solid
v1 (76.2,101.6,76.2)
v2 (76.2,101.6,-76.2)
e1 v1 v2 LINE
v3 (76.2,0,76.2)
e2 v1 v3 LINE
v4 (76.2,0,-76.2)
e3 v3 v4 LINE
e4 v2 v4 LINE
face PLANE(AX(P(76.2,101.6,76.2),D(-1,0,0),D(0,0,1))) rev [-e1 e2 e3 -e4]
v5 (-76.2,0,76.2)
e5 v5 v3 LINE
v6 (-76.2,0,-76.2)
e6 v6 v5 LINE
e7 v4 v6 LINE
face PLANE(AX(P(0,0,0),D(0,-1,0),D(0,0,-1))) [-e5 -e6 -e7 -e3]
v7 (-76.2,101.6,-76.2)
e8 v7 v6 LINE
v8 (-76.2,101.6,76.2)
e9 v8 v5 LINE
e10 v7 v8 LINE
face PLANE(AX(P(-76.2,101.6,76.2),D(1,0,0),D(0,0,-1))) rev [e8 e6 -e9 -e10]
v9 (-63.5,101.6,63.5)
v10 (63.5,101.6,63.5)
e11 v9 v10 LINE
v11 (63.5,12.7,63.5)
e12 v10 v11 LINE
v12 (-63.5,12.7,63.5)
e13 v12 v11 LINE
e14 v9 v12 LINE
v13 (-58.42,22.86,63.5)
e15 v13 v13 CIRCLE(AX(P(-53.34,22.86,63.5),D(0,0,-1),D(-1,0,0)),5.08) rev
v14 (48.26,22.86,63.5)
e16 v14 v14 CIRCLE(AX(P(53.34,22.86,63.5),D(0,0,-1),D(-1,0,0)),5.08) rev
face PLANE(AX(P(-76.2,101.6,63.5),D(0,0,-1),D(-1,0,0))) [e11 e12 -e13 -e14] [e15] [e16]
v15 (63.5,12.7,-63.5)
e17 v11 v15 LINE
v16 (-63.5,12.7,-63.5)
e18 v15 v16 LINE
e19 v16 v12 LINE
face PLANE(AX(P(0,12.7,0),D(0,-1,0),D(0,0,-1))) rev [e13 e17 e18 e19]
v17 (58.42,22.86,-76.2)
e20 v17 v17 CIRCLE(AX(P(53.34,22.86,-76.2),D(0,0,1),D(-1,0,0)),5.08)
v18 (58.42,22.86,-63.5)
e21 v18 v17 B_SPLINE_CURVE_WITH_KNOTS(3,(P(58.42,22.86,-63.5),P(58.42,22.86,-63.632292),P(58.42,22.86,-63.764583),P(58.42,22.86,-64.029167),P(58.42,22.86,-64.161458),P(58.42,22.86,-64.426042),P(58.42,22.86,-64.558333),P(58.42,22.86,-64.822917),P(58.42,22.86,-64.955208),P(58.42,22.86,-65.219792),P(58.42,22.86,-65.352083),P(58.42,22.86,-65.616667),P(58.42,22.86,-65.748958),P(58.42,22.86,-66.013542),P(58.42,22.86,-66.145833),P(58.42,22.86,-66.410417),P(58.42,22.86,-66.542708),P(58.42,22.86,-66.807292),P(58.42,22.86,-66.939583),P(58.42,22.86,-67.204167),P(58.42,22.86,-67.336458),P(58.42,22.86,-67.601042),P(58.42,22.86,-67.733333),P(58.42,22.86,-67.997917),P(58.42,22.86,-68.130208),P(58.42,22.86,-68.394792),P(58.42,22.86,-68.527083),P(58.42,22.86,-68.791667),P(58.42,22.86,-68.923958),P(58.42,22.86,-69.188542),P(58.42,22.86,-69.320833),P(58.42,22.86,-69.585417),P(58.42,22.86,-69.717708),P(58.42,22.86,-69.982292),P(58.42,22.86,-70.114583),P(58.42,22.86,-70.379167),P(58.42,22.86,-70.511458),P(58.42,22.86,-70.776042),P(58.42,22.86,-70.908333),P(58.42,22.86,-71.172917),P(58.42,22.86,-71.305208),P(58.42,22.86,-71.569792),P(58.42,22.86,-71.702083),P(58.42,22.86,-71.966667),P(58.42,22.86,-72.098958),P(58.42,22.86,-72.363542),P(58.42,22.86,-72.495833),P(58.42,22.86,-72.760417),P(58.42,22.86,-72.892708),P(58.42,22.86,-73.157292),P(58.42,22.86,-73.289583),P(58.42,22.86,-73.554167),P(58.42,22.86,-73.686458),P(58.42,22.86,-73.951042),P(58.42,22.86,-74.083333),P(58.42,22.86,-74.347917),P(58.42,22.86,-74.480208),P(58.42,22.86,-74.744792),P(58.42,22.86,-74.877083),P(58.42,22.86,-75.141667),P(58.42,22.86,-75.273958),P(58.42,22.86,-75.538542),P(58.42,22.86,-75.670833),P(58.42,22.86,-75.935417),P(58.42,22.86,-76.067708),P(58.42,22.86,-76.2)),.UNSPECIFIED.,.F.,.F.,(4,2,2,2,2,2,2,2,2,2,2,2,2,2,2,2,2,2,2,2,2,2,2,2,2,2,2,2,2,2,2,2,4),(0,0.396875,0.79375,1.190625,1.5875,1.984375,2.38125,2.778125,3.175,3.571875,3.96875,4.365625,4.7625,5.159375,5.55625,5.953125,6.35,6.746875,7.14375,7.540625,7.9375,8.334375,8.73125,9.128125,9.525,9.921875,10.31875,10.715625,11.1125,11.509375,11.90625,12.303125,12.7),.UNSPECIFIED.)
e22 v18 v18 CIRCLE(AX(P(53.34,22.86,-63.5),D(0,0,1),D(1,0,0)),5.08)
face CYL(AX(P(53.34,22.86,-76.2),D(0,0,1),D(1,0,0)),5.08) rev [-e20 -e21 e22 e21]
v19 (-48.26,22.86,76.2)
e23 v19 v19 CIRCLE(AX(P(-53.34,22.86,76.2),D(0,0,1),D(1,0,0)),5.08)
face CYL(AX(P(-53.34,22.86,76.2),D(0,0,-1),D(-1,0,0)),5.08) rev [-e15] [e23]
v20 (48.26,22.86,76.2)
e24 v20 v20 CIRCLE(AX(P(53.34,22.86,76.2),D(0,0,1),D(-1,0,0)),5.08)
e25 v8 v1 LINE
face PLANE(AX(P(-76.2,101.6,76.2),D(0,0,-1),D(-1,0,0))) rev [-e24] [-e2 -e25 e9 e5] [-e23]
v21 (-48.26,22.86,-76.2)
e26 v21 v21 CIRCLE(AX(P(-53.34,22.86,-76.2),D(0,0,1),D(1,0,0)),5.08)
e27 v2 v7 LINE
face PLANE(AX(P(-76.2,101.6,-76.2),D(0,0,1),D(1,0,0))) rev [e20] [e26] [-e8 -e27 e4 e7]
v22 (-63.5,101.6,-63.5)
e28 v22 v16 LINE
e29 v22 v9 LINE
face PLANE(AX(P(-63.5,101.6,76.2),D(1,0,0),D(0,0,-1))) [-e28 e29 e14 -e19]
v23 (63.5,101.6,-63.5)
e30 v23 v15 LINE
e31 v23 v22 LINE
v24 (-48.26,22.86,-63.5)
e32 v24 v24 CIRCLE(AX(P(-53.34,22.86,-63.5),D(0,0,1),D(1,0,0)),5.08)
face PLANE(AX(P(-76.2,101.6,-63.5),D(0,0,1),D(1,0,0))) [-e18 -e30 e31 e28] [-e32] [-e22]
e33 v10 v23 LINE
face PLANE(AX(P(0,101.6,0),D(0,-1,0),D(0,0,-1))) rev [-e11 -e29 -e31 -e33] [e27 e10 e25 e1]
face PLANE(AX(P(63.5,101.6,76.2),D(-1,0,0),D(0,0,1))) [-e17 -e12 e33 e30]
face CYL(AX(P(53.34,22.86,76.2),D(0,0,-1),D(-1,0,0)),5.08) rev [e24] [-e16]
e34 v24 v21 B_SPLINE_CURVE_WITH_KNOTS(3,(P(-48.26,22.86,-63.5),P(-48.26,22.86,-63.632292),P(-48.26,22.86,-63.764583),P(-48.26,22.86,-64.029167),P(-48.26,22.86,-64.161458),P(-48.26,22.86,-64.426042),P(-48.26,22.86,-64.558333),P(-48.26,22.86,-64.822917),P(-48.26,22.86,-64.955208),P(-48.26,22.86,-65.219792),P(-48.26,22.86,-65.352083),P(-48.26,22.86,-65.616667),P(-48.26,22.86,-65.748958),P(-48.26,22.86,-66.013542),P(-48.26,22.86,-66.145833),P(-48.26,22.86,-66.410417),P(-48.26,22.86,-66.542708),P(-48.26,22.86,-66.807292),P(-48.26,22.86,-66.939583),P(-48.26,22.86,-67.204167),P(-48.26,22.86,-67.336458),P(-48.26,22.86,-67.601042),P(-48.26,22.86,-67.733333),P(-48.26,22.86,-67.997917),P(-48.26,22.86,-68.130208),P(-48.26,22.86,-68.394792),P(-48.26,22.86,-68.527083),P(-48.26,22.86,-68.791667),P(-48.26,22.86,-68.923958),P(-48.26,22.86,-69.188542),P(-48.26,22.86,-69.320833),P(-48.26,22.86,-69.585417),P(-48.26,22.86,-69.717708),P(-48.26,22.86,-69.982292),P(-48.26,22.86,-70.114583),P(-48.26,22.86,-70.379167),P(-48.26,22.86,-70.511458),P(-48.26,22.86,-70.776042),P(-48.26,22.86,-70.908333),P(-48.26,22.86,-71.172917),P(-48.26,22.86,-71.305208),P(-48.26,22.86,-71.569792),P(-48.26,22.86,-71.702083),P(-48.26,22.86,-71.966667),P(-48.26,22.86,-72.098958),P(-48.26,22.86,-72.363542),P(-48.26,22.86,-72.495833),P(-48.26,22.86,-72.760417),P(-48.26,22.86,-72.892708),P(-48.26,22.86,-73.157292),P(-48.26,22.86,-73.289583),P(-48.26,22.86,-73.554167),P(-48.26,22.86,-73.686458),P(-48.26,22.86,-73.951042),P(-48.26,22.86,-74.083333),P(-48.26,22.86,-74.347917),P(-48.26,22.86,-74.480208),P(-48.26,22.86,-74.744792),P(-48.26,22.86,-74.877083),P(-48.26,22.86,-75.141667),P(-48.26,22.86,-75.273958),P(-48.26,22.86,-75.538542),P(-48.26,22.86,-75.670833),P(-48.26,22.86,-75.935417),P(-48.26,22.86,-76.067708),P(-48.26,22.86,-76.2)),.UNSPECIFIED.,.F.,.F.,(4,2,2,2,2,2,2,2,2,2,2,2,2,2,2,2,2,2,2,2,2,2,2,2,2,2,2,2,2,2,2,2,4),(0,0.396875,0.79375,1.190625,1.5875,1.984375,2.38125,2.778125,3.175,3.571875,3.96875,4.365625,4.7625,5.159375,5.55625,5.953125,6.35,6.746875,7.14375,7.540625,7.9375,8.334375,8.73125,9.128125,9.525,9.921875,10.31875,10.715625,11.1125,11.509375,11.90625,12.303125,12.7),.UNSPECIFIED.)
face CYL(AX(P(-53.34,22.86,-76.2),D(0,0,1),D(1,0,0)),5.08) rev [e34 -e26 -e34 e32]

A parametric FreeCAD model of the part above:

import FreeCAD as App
import Part
import Sketcher

V = App.Vector
Q = App.Units.Quantity


def faces_at(feature, points):
    """Names of the faces that lie closest to the given points."""
    faces = feature.Shape.Faces
    near = lambda p: min(range(len(faces)), key=lambda i: faces[i].distToShape(Part.Vertex(*p))[0])
    return sorted({f"Face{near(p) + 1}" for p in points})

doc = App.newDocument("Part")
body = doc.addObject("PartDesign::Body", "Body")

sketch1 = doc.addObject("Sketcher::SketchObject", "Sketch")
body.addObject(sketch1)
sketch1.AttachmentSupport = (doc.XZ_Plane, [""])
sketch1.MapMode = "FlatFace"
sketch1.addGeometry(Part.LineSegment(V(-76, -76, 0), V(-76, 76, 0)), False)
sketch1.addGeometry(Part.LineSegment(V(-76, 76, 0), V(76, 76, 0)), False)
sketch1.addGeometry(Part.LineSegment(V(76, 76, 0), V(76, -76, 0)), False)
sketch1.addGeometry(Part.LineSegment(V(76, -76, 0), V(-76, -76, 0)), False)
sketch1.addConstraint(Sketcher.Constraint("Coincident", 0, 2, 1, 1))
sketch1.addConstraint(Sketcher.Constraint("Coincident", 1, 2, 2, 1))
sketch1.addConstraint(Sketcher.Constraint("Coincident", 2, 2, 3, 1))
sketch1.addConstraint(Sketcher.Constraint("Coincident", 3, 2, 0, 1))
sketch1.addConstraint(Sketcher.Constraint("Vertical", 0))
sketch1.addConstraint(Sketcher.Constraint("Horizontal", 1))
sketch1.addConstraint(Sketcher.Constraint("Vertical", 2))
sketch1.addConstraint(Sketcher.Constraint("Horizontal", 3))
sketch1.addConstraint(Sketcher.Constraint("Symmetric", 0, 2, 2, 2, -1, 1))
sketch1.addConstraint(Sketcher.Constraint("Equal", 3, 0))
sketch1.addConstraint(Sketcher.Constraint("DistanceX", 1, 1, 1, 2, Q("6 in")))
pad1 = doc.addObject("PartDesign::Pad", "Pad")
body.addObject(pad1)
pad1.Profile = sketch1
pad1.Length = Q("4 in")
pad1.Reversed = True
doc.recompute()

thickness = doc.addObject("PartDesign::Thickness", "Thickness")
body.addObject(thickness)
thickness.Base = (pad1, faces_at(pad1, [(0, 101.6, 0)]))
thickness.Value = Q("0.5 in")
thickness.Reversed = True
thickness.Join = "Intersection"

sketch2 = doc.addObject("Sketcher::SketchObject", "Sketch001")
body.addObject(sketch2)
sketch2.AttachmentSupport = (doc.XY_Plane, [""])
sketch2.MapMode = "FlatFace"
sketch2.AttachmentOffset = App.Placement(V(0, 0, -2.5 * 25.4), App.Rotation())
sketch2.addGeometry(Part.Circle(V(-53, 23, 0), V(0, 0, 1), 5), False)
sketch2.addGeometry(Part.Circle(V(53, 23, 0), V(0, 0, 1), 5), False)
sketch2.addConstraint(Sketcher.Constraint("Equal", 0, 1))
sketch2.addConstraint(Sketcher.Constraint("Symmetric", 0, 3, 1, 3, -2))
sketch2.addConstraint(Sketcher.Constraint("Diameter", 0, Q("0.4 in")))
sketch2.addConstraint(Sketcher.Constraint("DistanceX", 0, 3, -1, 1, Q("2.1 in")))
sketch2.addConstraint(Sketcher.Constraint("DistanceY", -1, 1, 0, 3, Q("0.9 in")))
pocket1 = doc.addObject("PartDesign::Pocket", "Pocket")
body.addObject(pocket1)
pocket1.Profile = sketch2
pocket1.Type = "ThroughAll"
pocket1.Reversed = True
doc.recompute()

mirrored = doc.addObject("PartDesign::Mirrored", "Mirrored")
body.addObject(mirrored)
mirrored.Originals = [pocket1]
mirrored.MirrorPlane = (doc.XY_Plane, [""])
body.Tip = mirrored

doc.recompute()
